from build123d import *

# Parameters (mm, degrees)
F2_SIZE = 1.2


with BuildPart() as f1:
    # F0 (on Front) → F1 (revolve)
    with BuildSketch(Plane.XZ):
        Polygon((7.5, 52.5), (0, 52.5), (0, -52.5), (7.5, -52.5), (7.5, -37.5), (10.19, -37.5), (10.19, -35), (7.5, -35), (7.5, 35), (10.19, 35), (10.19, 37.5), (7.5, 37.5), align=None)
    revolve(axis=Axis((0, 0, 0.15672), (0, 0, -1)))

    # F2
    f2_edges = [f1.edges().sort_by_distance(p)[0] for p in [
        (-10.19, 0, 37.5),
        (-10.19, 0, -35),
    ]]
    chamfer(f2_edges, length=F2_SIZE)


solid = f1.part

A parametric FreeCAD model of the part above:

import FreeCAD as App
import Part
import Sketcher
from FreeCAD import Vector
Q = App.Units.Quantity


def edges_at(feature, points):
    """Names of the edges that pass closest to the given points."""
    edges = feature.Shape.Edges
    near = lambda p: min(range(len(edges)), key=lambda i: edges[i].distToShape(Part.Vertex(*p))[0])
    return sorted({f"Edge{near(p) + 1}" for p in points})

doc = App.newDocument("Part")
params = doc.addObject("Spreadsheet::Sheet", "Params")
for row, (alias, value) in enumerate([
    ("sketch1_height", "105 mm"),
    ("sketch1_height2", "15 mm"),
    ("sketch1_height3", "70 mm"),
    ("sketch1_width", "7.5 mm"),
    ("sketch1_width2", "2.69 mm"),
    ("revolution_angle", "360 deg"),
    ("chamfer_size", "1.2 mm"),
], start=1):
    params.set(f"A{row}", alias)
    params.set(f"B{row}", "=" + value)
    params.setAlias(f"B{row}", alias)

body = doc.addObject("PartDesign::Body", "Body")

sketch1 = body.newObject("Sketcher::SketchObject", "Sketch")
sketch1.AttachmentSupport = (doc.getObject("XZ_Plane"), [""])
sketch1.MapMode = "FlatFace"
sketch1.addGeometry(Part.LineSegment(Vector(7.5, 52.5, 0), Vector(0, 52.5, 0)), False)
sketch1.addGeometry(Part.LineSegment(Vector(0, 52.5, 0), Vector(0, -52.5, 0)), False)
sketch1.addGeometry(Part.LineSegment(Vector(0, -52.5, 0), Vector(7.5, -52.5, 0)), False)
sketch1.addGeometry(Part.LineSegment(Vector(7.5, -52.5, 0), Vector(7.5, -37.5, 0)), False)
sketch1.addGeometry(Part.LineSegment(Vector(7.5, -37.5, 0), Vector(10.2, -37.5, 0)), False)
sketch1.addGeometry(Part.LineSegment(Vector(10.2, -37.5, 0), Vector(10.2, -35, 0)), False)
sketch1.addGeometry(Part.LineSegment(Vector(10.2, -35, 0), Vector(7.5, -35, 0)), False)
sketch1.addGeometry(Part.LineSegment(Vector(7.5, -35, 0), Vector(7.5, 35, 0)), False)
sketch1.addGeometry(Part.LineSegment(Vector(7.5, 35, 0), Vector(10.2, 35, 0)), False)
sketch1.addGeometry(Part.LineSegment(Vector(10.2, 35, 0), Vector(10.2, 37.5, 0)), False)
sketch1.addGeometry(Part.LineSegment(Vector(10.2, 37.5, 0), Vector(7.5, 37.5, 0)), False)
sketch1.addGeometry(Part.LineSegment(Vector(7.5, 37.5, 0), Vector(7.5, 52.5, 0)), False)
sketch1.addConstraint(Sketcher.Constraint("Coincident", 0, 2, 1, 1))
sketch1.addConstraint(Sketcher.Constraint("Coincident", 1, 2, 2, 1))
sketch1.addConstraint(Sketcher.Constraint("Coincident", 2, 2, 3, 1))
sketch1.addConstraint(Sketcher.Constraint("Coincident", 3, 2, 4, 1))
sketch1.addConstraint(Sketcher.Constraint("Coincident", 4, 2, 5, 1))
sketch1.addConstraint(Sketcher.Constraint("Coincident", 5, 2, 6, 1))
sketch1.addConstraint(Sketcher.Constraint("Coincident", 6, 2, 7, 1))
sketch1.addConstraint(Sketcher.Constraint("Coincident", 7, 2, 8, 1))
sketch1.addConstraint(Sketcher.Constraint("Coincident", 8, 2, 9, 1))
sketch1.addConstraint(Sketcher.Constraint("Coincident", 9, 2, 10, 1))
sketch1.addConstraint(Sketcher.Constraint("Coincident", 10, 2, 11, 1))
sketch1.addConstraint(Sketcher.Constraint("Coincident", 11, 2, 0, 1))
sketch1.addConstraint(Sketcher.Constraint("Horizontal", 0))
sketch1.addConstraint(Sketcher.Constraint("Vertical", 1))
sketch1.addConstraint(Sketcher.Constraint("Horizontal", 2))
sketch1.addConstraint(Sketcher.Constraint("Vertical", 3))
sketch1.addConstraint(Sketcher.Constraint("Horizontal", 4))
sketch1.addConstraint(Sketcher.Constraint("Vertical", 5))
sketch1.addConstraint(Sketcher.Constraint("Horizontal", 6))
sketch1.addConstraint(Sketcher.Constraint("Vertical", 7))
sketch1.addConstraint(Sketcher.Constraint("Horizontal", 8))
sketch1.addConstraint(Sketcher.Constraint("Vertical", 9))
sketch1.addConstraint(Sketcher.Constraint("Horizontal", 10))
sketch1.addConstraint(Sketcher.Constraint("Vertical", 11))
sketch1.addConstraint(Sketcher.Constraint("Symmetric", 0, 2, 1, 2, -1, 1))
sketch1.addConstraint(Sketcher.Constraint("Symmetric", 5, 2, 8, 2, -1))
sketch1.addConstraint(Sketcher.Constraint("Symmetric", 3, 2, 10, 2, -1))
sketch1.addConstraint(Sketcher.Constraint("Vertical", 3, 2, 6, 2))
sketch1.addConstraint(Sketcher.Constraint("DistanceY", 1, 2, 1, 1, Q("105 mm")))
sketch1.addConstraint(Sketcher.Constraint("DistanceY", 3, 1, 3, 2, Q("15 mm")))
sketch1.addConstraint(Sketcher.Constraint("DistanceY", 7, 1, 7, 2, Q("70 mm")))
sketch1.addConstraint(Sketcher.Constraint("DistanceX", 0, 2, 0, 1, Q("7.5 mm")))
sketch1.addConstraint(Sketcher.Constraint("DistanceX", 4, 1, 4, 2, Q("2.69 mm")))
sketch1.setExpression("Constraints[28]", "Params.sketch1_height")
sketch1.setExpression("Constraints[29]", "Params.sketch1_height2")
sketch1.setExpression("Constraints[30]", "Params.sketch1_height3")
sketch1.setExpression("Constraints[31]", "Params.sketch1_width")
sketch1.setExpression("Constraints[32]", "Params.sketch1_width2")
revolution = body.newObject("PartDesign::Revolution", "Revolution")
revolution.Profile = sketch1
revolution.ReferenceAxis = (sketch1, ["V_Axis"])
revolution.setExpression("Angle", "Params.revolution_angle")
doc.recompute()

chamfer = body.newObject("PartDesign::Chamfer", "Chamfer")
chamfer.Base = (revolution, edges_at(revolution, [(-10.19, 0, 37.5), (-10.19, 0, -35)]))
chamfer.setExpression("Size", "Params.chamfer_size")

doc.recompute()
